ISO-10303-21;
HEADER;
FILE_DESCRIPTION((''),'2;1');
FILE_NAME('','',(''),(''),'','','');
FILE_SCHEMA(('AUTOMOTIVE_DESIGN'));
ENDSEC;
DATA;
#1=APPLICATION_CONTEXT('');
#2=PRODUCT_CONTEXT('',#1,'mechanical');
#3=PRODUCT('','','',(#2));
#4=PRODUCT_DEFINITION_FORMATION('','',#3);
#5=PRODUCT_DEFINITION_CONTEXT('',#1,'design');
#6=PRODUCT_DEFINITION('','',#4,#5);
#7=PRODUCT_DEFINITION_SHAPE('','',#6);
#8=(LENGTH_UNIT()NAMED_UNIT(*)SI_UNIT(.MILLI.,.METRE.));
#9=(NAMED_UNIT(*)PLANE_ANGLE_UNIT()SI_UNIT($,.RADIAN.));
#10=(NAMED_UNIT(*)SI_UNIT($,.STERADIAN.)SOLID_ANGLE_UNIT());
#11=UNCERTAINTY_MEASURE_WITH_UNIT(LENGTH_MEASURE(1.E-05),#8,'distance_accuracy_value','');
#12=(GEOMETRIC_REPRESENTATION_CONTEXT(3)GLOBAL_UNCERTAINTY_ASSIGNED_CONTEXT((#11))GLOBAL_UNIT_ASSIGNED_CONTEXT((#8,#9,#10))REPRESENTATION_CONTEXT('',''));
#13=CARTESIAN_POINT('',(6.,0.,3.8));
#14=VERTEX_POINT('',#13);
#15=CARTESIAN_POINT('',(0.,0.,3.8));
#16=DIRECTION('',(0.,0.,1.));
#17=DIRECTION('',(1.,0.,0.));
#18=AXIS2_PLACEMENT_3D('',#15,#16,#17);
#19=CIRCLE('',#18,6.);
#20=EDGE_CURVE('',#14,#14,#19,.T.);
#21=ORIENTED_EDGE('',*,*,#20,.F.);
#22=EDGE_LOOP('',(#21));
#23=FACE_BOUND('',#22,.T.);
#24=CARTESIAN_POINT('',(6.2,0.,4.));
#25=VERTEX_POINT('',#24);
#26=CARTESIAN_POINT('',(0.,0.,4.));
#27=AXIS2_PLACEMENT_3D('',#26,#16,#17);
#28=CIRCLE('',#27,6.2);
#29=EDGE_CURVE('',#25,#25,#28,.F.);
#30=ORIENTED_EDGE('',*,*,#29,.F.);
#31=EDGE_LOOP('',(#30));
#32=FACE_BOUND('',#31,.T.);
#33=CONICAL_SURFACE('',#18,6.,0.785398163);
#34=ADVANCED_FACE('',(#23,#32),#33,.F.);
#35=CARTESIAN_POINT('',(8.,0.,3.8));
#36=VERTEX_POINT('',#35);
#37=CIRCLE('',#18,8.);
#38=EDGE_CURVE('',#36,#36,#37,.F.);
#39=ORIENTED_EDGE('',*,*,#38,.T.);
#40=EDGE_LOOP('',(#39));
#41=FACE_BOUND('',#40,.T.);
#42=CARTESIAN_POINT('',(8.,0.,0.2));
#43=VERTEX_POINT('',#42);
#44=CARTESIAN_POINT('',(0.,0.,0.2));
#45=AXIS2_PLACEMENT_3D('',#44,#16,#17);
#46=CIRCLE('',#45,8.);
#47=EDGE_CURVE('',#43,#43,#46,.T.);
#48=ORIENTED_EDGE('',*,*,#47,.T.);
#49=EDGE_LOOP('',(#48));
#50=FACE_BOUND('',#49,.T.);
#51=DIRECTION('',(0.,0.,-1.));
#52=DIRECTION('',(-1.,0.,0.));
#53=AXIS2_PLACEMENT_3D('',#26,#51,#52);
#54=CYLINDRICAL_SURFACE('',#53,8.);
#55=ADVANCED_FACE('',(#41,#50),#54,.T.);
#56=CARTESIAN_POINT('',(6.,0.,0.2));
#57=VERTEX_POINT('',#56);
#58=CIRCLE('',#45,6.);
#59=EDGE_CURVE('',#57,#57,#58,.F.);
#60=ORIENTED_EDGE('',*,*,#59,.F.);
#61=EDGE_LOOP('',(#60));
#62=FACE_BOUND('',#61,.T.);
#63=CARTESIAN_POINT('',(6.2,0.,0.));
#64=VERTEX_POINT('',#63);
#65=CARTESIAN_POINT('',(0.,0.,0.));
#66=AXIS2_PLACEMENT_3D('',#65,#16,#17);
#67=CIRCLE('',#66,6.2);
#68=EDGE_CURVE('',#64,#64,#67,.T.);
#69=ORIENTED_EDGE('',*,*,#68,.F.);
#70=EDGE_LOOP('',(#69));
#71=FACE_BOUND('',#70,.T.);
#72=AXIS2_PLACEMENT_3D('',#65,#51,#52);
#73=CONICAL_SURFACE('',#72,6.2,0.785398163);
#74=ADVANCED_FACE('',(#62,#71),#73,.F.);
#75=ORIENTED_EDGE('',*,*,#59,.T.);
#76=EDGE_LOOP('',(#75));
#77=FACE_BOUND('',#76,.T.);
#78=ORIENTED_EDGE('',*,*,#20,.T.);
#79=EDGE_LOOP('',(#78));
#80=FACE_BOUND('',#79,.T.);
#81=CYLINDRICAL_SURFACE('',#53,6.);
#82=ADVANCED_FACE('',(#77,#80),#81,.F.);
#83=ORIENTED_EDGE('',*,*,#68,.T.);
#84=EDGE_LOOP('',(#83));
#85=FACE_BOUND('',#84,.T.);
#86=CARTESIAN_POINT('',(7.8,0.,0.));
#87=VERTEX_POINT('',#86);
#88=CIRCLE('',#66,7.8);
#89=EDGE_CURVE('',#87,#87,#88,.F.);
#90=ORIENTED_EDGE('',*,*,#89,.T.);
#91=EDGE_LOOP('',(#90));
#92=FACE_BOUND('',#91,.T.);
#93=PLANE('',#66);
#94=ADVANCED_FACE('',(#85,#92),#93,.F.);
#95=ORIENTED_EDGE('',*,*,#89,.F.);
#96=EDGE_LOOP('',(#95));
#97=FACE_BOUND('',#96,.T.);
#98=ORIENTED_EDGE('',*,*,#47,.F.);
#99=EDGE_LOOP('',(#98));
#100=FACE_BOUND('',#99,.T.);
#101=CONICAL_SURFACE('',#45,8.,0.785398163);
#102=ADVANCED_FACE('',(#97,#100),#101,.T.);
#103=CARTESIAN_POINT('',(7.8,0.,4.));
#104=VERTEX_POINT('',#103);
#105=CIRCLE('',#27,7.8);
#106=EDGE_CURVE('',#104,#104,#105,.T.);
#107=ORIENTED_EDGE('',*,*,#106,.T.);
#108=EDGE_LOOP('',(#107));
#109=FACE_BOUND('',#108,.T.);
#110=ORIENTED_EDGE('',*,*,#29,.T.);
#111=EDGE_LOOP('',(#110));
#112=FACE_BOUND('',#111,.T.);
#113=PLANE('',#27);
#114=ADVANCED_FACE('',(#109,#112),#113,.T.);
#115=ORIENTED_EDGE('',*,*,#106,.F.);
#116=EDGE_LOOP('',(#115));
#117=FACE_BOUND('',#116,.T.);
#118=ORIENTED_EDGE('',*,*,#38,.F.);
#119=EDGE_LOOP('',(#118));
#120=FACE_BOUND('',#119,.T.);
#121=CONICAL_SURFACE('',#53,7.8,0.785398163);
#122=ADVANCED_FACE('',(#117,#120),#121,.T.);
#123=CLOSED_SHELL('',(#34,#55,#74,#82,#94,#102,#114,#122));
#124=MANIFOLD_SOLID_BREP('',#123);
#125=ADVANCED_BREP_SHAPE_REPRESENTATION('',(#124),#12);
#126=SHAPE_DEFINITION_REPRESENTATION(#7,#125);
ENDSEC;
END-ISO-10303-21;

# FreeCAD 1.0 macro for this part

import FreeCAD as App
import Part
import Sketcher

V = App.Vector
Q = App.Units.Quantity


def edges_at(feature, points):
    """Names of the edges that pass closest to the given points."""
    edges = feature.Shape.Edges
    near = lambda p: min(range(len(edges)), key=lambda i: edges[i].distToShape(Part.Vertex(*p))[0])
    return sorted({f"Edge{near(p) + 1}" for p in points})

doc = App.newDocument("Part")
body = doc.addObject("PartDesign::Body", "Body")

sketch1 = body.newObject("Sketcher::SketchObject", "Sketch")
sketch1.AttachmentSupport = (doc.getObject("XY_Plane"), [""])
sketch1.MapMode = "FlatFace"
sketch1.addGeometry(Part.Circle(V(0, 0, 0), V(0, 0, 1), 8), False)
sketch1.addGeometry(Part.Circle(V(0, 0, 0), V(0, 0, 1), 6), False)
sketch1.addConstraint(Sketcher.Constraint("Coincident", 0, 3, -1, 1))
sketch1.addConstraint(Sketcher.Constraint("Coincident", 1, 3, -1, 1))
sketch1.addConstraint(Sketcher.Constraint("Diameter", 0, Q("16 mm")))
sketch1.addConstraint(Sketcher.Constraint("Diameter", 1, Q("12 mm")))
pad1 = body.newObject("PartDesign::Pad", "Pad")
pad1.Profile = sketch1
pad1.Length = 4
doc.recompute()

chamfer = body.newObject("PartDesign::Chamfer", "Chamfer")
chamfer.Base = (pad1, edges_at(pad1, [
    (-8, 0, 0),
    (-8, 0, 4),
    (-6, 0, 0),
    (-6, 0, 4),
]))
chamfer.Size = 0.2

doc.recompute()
